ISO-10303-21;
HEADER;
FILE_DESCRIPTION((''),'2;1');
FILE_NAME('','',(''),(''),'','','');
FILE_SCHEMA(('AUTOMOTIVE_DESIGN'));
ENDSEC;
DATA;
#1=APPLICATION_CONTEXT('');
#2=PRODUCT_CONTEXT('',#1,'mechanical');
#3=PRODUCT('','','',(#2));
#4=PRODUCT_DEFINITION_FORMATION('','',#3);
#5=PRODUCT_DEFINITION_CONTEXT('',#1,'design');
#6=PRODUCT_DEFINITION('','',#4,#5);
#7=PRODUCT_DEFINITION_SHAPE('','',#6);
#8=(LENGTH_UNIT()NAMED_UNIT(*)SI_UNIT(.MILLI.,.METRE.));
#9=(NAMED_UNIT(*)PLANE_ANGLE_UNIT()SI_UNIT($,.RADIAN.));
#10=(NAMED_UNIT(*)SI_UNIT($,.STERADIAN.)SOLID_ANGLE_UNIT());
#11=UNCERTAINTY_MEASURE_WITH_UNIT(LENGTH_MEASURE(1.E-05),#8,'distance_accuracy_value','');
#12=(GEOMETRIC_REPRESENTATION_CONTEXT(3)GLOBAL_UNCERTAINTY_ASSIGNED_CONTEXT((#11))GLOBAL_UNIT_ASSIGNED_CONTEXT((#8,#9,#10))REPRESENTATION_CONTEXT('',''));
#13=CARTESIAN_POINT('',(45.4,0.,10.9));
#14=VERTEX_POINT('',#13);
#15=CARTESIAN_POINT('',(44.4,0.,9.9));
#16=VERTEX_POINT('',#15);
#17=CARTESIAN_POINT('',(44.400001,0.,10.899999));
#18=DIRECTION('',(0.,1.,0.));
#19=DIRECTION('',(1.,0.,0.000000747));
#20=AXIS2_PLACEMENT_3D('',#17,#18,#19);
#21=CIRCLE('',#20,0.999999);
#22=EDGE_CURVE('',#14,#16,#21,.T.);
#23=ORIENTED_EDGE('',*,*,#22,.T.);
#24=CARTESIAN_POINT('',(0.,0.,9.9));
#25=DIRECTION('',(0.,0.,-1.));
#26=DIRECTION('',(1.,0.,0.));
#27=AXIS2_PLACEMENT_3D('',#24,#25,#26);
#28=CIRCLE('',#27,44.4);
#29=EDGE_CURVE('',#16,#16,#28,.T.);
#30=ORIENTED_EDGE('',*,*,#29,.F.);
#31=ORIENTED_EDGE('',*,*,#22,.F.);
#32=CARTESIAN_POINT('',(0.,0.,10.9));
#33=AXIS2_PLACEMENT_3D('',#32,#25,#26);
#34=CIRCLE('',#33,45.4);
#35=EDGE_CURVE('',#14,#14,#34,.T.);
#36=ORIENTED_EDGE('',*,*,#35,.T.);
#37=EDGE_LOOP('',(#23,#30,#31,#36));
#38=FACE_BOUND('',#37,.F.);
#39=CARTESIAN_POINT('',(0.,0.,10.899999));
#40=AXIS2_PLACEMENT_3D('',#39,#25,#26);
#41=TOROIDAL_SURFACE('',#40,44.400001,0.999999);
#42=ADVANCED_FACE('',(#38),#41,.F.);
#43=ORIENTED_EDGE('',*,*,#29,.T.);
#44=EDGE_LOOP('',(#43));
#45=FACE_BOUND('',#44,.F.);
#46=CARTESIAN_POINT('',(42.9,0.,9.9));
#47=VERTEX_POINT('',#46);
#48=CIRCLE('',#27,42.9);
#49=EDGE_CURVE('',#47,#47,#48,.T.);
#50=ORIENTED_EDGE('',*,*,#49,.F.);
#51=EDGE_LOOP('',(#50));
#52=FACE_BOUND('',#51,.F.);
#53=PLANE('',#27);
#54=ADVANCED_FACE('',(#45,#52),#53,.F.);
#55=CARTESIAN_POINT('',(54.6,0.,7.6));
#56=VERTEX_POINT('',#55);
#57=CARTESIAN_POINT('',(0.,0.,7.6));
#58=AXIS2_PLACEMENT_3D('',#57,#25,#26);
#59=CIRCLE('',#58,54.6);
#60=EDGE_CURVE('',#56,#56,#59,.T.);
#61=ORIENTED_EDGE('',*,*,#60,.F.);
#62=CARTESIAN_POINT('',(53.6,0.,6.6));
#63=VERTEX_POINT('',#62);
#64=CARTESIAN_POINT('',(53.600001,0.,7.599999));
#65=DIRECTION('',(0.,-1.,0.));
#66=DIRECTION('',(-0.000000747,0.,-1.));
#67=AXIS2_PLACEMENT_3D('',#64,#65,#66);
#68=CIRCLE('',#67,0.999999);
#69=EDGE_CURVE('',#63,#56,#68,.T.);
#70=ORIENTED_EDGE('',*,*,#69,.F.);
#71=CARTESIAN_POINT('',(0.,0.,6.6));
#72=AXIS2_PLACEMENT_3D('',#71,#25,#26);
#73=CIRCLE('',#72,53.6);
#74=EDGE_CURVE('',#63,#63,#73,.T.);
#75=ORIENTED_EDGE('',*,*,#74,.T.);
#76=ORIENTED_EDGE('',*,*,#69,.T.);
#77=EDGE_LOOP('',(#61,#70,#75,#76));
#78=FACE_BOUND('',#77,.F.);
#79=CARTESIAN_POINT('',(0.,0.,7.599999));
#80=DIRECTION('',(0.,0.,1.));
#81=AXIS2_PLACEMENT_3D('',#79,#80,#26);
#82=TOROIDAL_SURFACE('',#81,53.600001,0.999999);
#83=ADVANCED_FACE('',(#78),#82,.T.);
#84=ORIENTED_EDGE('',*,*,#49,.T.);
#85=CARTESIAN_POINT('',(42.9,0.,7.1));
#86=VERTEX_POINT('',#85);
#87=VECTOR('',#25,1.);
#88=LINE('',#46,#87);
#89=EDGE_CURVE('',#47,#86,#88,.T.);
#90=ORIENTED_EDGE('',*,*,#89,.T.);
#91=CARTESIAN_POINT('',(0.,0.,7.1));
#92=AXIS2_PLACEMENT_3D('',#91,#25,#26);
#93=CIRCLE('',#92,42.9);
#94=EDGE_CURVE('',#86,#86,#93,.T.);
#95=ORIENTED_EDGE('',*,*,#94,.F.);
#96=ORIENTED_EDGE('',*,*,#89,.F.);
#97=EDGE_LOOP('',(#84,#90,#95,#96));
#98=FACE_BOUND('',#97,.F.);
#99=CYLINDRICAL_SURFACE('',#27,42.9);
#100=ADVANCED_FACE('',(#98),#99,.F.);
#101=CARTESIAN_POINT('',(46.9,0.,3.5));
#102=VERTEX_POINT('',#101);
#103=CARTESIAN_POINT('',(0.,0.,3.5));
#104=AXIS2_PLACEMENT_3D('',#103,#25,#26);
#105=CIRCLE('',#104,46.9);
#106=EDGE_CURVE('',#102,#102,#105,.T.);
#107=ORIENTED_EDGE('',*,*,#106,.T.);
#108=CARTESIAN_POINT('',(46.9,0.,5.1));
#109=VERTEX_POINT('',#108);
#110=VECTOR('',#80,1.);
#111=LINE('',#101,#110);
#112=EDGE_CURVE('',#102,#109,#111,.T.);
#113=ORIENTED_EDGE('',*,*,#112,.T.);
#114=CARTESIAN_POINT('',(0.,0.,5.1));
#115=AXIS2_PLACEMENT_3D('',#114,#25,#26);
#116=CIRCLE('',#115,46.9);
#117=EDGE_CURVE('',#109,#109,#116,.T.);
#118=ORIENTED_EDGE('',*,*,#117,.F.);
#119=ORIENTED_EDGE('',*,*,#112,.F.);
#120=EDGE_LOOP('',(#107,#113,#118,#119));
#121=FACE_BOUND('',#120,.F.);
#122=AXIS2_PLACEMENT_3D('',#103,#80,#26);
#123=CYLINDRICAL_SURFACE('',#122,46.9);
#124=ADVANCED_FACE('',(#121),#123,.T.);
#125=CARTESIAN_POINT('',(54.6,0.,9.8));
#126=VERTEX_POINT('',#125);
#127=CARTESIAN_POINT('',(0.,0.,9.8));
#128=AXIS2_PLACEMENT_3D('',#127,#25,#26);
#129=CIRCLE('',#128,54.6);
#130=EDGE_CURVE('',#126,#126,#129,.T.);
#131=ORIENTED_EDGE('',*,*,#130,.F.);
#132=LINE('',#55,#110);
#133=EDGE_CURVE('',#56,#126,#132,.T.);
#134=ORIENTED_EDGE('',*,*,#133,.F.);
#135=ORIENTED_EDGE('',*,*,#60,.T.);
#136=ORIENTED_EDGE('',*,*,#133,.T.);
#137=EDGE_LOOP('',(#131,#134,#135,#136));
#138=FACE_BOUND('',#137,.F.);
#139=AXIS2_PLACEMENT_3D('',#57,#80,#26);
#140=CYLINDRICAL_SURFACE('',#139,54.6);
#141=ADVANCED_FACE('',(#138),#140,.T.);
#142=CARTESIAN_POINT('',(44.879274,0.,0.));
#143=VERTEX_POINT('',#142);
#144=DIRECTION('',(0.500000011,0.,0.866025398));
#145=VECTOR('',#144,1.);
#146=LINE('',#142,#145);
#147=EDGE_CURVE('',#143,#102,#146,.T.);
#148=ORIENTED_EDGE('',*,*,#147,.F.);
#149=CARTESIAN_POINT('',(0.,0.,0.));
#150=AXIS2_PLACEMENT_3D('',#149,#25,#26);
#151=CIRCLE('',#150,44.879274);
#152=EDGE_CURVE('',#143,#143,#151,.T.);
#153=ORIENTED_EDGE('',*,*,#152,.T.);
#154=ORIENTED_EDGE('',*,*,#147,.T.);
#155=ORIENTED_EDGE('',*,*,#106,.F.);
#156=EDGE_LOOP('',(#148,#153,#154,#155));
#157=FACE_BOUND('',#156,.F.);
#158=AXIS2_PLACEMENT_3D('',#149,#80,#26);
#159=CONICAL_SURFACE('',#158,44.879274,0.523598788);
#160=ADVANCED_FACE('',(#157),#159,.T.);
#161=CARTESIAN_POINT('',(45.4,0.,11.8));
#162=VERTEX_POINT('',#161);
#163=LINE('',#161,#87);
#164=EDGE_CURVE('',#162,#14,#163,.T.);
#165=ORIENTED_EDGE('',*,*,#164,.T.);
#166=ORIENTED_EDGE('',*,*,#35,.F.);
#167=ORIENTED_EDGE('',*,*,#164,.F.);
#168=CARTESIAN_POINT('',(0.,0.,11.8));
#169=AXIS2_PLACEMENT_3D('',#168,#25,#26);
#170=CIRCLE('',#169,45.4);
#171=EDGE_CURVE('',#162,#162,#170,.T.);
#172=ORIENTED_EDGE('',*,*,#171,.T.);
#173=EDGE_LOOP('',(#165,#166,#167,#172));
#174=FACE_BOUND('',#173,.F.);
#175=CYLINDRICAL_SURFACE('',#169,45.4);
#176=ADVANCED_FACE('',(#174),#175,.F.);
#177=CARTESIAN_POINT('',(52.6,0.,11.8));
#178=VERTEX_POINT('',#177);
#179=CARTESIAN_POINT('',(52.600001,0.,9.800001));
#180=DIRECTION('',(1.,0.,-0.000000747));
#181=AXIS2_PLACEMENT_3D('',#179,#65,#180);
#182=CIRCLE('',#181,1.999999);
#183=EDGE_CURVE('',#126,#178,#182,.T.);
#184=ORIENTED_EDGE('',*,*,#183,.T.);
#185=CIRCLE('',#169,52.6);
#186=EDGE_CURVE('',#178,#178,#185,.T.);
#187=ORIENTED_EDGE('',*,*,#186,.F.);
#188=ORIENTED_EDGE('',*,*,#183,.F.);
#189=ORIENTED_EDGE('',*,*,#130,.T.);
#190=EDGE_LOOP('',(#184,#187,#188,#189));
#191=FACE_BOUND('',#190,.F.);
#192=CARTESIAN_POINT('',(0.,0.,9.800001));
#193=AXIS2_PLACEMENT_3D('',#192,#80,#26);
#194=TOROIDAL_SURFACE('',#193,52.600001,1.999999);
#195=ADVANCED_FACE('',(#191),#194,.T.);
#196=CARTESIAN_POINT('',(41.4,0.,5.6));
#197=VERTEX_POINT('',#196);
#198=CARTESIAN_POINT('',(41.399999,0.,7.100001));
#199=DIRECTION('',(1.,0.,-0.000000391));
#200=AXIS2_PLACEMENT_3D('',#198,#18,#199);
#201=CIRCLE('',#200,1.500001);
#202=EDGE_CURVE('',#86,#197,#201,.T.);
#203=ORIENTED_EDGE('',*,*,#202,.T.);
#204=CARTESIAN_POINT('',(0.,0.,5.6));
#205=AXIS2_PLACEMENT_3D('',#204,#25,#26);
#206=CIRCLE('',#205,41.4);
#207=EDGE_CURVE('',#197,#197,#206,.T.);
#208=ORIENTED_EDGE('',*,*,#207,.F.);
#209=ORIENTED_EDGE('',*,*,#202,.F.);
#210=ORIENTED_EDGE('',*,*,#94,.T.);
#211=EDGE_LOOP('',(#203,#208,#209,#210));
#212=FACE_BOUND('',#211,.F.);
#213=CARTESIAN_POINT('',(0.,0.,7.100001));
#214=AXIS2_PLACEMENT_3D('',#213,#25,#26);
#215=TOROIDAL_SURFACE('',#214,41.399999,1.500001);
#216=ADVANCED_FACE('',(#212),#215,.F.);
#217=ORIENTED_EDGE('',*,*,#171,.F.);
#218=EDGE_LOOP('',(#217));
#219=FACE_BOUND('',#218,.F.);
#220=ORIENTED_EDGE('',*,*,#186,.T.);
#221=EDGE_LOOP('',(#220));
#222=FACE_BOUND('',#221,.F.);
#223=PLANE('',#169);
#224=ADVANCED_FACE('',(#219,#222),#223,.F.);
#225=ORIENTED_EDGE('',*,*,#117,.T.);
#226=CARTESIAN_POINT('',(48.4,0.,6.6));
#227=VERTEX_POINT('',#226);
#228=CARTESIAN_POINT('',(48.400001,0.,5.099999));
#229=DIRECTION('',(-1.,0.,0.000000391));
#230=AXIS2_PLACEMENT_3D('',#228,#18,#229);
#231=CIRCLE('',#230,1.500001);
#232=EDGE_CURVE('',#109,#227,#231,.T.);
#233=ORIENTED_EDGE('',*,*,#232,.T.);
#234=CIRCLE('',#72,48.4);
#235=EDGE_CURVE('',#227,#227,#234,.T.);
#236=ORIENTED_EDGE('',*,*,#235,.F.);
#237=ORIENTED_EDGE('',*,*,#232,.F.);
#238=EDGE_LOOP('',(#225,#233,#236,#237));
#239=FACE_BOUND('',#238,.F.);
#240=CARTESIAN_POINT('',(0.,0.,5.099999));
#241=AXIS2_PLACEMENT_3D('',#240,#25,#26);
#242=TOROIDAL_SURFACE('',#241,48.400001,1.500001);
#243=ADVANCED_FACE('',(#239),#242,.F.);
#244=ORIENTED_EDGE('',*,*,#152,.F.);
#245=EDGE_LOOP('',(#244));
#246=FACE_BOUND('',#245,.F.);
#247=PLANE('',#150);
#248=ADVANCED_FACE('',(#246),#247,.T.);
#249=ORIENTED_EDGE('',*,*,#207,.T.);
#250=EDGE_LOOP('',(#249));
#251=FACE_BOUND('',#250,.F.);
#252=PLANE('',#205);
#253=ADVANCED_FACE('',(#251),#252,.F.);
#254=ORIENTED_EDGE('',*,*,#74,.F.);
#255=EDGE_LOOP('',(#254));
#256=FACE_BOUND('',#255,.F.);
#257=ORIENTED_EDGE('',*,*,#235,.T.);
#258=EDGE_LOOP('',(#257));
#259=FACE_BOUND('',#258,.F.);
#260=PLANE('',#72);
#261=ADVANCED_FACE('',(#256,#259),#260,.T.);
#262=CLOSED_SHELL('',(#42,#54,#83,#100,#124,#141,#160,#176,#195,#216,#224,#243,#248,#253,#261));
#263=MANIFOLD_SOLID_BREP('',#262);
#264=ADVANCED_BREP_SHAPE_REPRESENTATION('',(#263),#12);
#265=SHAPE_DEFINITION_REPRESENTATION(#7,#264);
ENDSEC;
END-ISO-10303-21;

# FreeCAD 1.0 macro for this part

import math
import FreeCAD as App
import Part
import Sketcher
Q = App.Units.Quantity

doc = App.newDocument("Part")
body = doc.addObject("PartDesign::Body", "Body")

# Sketch on XZ plane
sketch1 = doc.addObject("Sketcher::SketchObject", "Sketch")
body.addObject(sketch1)
sketch1.AttachmentSupport = (doc.XZ_Plane, [""])
sketch1.MapMode = "FlatFace"
sketch1.addGeometry([
    Part.LineSegment(App.Vector(54.6, 7.6, 0), App.Vector(54.6, 9.8, 0)),  # 0
    Part.ArcOfCircle(Part.Circle(App.Vector(52.600001, 9.800001, 0), App.Vector(0, 0, 1), 1.999999), math.radians(-0.000043), math.radians(90.000043)),  # 1
    Part.LineSegment(App.Vector(52.6, 11.8, 0), App.Vector(45.4, 11.8, 0)),  # 2
    Part.LineSegment(App.Vector(45.4, 11.8, 0), App.Vector(45.4, 10.9, 0)),  # 3
    Part.ArcOfCircle(Part.Circle(App.Vector(44.400001, 10.899999, 0), App.Vector(0, 0, 1), 0.999999), math.radians(-90.000043), math.radians(0.000043)),  # 4
    Part.LineSegment(App.Vector(44.4, 9.9, 0), App.Vector(42.9, 9.9, 0)),  # 5
    Part.LineSegment(App.Vector(42.9, 9.9, 0), App.Vector(42.9, 7.1, 0)),  # 6
    Part.ArcOfCircle(Part.Circle(App.Vector(41.399999, 7.100001, 0), App.Vector(0, 0, 1), 1.500001), math.radians(-89.999978), math.radians(-0.000022)),  # 7
    Part.LineSegment(App.Vector(41.4, 5.6, 0), App.Vector(0, 5.6, 0)),  # 8
    Part.LineSegment(App.Vector(0, 5.6, 0), App.Vector(0, 0, 0)),  # 9
    Part.LineSegment(App.Vector(0, 0, 0), App.Vector(44.879274, 0, 0)),  # 10
    Part.LineSegment(App.Vector(44.879274, 0, 0), App.Vector(46.9, 3.5, 0)),  # 11
    Part.LineSegment(App.Vector(46.9, 3.5, 0), App.Vector(46.9, 5.1, 0)),  # 12
    Part.ArcOfCircle(Part.Circle(App.Vector(48.400001, 5.099999, 0), App.Vector(0, 0, 1), 1.500001), math.radians(90.000022), math.radians(179.999978)),  # 13
    Part.LineSegment(App.Vector(48.4, 6.6, 0), App.Vector(53.6, 6.6, 0)),  # 14
    Part.ArcOfCircle(Part.Circle(App.Vector(53.600001, 7.599999, 0), App.Vector(0, 0, 1), 0.999999), math.radians(-90.000043), math.radians(0.000043)),  # 15
], False)
sketch1.addConstraint([
    Sketcher.Constraint("Tangent", 0, 2, 1, 1),
    Sketcher.Constraint("Tangent", 1, 2, 2, 1),
    Sketcher.Constraint("Coincident", 2, 2, 3, 1),
    Sketcher.Constraint("Tangent", 3, 2, 4, 2),
    Sketcher.Constraint("Tangent", 4, 1, 5, 1),
    Sketcher.Constraint("Coincident", 5, 2, 6, 1),
    Sketcher.Constraint("Tangent", 6, 2, 7, 2),
    Sketcher.Constraint("Tangent", 7, 1, 8, 1),
    Sketcher.Constraint("Coincident", 8, 2, 9, 1),
    Sketcher.Constraint("Coincident", 9, 2, 10, 1),
    Sketcher.Constraint("Coincident", 10, 2, 11, 1),
    Sketcher.Constraint("Coincident", 11, 2, 12, 1),
    Sketcher.Constraint("Tangent", 12, 2, 13, 2),
    Sketcher.Constraint("Tangent", 13, 1, 14, 1),
    Sketcher.Constraint("Tangent", 14, 2, 15, 1),
    Sketcher.Constraint("Tangent", 15, 2, 0, 1),
    Sketcher.Constraint("Vertical", 0),
    Sketcher.Constraint("Horizontal", 2),
    Sketcher.Constraint("Vertical", 3),
    Sketcher.Constraint("Horizontal", 5),
    Sketcher.Constraint("Vertical", 6),
    Sketcher.Constraint("Horizontal", 8),
    Sketcher.Constraint("Vertical", 9),
    Sketcher.Constraint("Horizontal", 10),
    Sketcher.Constraint("Vertical", 12),
    Sketcher.Constraint("Horizontal", 14),
    Sketcher.Constraint("Coincident", 9, 2, -1, 1),
    Sketcher.Constraint("Equal", 7, 13),
    Sketcher.Constraint("Equal", 4, 15),
    Sketcher.Constraint("Radius", 1, Q("1.999999 mm")),
    Sketcher.Constraint("Radius", 4, Q("0.999999 mm")),
    Sketcher.Constraint("Radius", 7, Q("1.500001 mm")),
    Sketcher.Constraint("Angle", 11, Q("59.999999 deg")),
    Sketcher.Constraint("DistanceX", 2, 2, 2, 1, Q("7.2 mm")),
    Sketcher.Constraint("DistanceX", 5, 2, 5, 1, Q("1.5 mm")),
    Sketcher.Constraint("DistanceX", 8, 2, 8, 1, Q("41.4 mm")),
    Sketcher.Constraint("DistanceX", 14, 1, 14, 2, Q("5.2 mm")),
    Sketcher.Constraint("DistanceY", 0, 1, 0, 2, Q("2.2 mm")),
    Sketcher.Constraint("DistanceY", 3, 2, 3, 1, Q("0.9 mm")),
    Sketcher.Constraint("DistanceY", 6, 2, 6, 1, Q("2.8 mm")),
    Sketcher.Constraint("DistanceY", 9, 2, 9, 1, Q("5.6 mm")),
    Sketcher.Constraint("DistanceY", 12, 1, 12, 2, Q("1.6 mm")),
])
revolution = doc.addObject("PartDesign::Revolution", "Revolution")
body.addObject(revolution)
revolution.Profile = sketch1
revolution.ReferenceAxis = (sketch1, ["V_Axis"])
revolution.Angle = 360

doc.recompute()
